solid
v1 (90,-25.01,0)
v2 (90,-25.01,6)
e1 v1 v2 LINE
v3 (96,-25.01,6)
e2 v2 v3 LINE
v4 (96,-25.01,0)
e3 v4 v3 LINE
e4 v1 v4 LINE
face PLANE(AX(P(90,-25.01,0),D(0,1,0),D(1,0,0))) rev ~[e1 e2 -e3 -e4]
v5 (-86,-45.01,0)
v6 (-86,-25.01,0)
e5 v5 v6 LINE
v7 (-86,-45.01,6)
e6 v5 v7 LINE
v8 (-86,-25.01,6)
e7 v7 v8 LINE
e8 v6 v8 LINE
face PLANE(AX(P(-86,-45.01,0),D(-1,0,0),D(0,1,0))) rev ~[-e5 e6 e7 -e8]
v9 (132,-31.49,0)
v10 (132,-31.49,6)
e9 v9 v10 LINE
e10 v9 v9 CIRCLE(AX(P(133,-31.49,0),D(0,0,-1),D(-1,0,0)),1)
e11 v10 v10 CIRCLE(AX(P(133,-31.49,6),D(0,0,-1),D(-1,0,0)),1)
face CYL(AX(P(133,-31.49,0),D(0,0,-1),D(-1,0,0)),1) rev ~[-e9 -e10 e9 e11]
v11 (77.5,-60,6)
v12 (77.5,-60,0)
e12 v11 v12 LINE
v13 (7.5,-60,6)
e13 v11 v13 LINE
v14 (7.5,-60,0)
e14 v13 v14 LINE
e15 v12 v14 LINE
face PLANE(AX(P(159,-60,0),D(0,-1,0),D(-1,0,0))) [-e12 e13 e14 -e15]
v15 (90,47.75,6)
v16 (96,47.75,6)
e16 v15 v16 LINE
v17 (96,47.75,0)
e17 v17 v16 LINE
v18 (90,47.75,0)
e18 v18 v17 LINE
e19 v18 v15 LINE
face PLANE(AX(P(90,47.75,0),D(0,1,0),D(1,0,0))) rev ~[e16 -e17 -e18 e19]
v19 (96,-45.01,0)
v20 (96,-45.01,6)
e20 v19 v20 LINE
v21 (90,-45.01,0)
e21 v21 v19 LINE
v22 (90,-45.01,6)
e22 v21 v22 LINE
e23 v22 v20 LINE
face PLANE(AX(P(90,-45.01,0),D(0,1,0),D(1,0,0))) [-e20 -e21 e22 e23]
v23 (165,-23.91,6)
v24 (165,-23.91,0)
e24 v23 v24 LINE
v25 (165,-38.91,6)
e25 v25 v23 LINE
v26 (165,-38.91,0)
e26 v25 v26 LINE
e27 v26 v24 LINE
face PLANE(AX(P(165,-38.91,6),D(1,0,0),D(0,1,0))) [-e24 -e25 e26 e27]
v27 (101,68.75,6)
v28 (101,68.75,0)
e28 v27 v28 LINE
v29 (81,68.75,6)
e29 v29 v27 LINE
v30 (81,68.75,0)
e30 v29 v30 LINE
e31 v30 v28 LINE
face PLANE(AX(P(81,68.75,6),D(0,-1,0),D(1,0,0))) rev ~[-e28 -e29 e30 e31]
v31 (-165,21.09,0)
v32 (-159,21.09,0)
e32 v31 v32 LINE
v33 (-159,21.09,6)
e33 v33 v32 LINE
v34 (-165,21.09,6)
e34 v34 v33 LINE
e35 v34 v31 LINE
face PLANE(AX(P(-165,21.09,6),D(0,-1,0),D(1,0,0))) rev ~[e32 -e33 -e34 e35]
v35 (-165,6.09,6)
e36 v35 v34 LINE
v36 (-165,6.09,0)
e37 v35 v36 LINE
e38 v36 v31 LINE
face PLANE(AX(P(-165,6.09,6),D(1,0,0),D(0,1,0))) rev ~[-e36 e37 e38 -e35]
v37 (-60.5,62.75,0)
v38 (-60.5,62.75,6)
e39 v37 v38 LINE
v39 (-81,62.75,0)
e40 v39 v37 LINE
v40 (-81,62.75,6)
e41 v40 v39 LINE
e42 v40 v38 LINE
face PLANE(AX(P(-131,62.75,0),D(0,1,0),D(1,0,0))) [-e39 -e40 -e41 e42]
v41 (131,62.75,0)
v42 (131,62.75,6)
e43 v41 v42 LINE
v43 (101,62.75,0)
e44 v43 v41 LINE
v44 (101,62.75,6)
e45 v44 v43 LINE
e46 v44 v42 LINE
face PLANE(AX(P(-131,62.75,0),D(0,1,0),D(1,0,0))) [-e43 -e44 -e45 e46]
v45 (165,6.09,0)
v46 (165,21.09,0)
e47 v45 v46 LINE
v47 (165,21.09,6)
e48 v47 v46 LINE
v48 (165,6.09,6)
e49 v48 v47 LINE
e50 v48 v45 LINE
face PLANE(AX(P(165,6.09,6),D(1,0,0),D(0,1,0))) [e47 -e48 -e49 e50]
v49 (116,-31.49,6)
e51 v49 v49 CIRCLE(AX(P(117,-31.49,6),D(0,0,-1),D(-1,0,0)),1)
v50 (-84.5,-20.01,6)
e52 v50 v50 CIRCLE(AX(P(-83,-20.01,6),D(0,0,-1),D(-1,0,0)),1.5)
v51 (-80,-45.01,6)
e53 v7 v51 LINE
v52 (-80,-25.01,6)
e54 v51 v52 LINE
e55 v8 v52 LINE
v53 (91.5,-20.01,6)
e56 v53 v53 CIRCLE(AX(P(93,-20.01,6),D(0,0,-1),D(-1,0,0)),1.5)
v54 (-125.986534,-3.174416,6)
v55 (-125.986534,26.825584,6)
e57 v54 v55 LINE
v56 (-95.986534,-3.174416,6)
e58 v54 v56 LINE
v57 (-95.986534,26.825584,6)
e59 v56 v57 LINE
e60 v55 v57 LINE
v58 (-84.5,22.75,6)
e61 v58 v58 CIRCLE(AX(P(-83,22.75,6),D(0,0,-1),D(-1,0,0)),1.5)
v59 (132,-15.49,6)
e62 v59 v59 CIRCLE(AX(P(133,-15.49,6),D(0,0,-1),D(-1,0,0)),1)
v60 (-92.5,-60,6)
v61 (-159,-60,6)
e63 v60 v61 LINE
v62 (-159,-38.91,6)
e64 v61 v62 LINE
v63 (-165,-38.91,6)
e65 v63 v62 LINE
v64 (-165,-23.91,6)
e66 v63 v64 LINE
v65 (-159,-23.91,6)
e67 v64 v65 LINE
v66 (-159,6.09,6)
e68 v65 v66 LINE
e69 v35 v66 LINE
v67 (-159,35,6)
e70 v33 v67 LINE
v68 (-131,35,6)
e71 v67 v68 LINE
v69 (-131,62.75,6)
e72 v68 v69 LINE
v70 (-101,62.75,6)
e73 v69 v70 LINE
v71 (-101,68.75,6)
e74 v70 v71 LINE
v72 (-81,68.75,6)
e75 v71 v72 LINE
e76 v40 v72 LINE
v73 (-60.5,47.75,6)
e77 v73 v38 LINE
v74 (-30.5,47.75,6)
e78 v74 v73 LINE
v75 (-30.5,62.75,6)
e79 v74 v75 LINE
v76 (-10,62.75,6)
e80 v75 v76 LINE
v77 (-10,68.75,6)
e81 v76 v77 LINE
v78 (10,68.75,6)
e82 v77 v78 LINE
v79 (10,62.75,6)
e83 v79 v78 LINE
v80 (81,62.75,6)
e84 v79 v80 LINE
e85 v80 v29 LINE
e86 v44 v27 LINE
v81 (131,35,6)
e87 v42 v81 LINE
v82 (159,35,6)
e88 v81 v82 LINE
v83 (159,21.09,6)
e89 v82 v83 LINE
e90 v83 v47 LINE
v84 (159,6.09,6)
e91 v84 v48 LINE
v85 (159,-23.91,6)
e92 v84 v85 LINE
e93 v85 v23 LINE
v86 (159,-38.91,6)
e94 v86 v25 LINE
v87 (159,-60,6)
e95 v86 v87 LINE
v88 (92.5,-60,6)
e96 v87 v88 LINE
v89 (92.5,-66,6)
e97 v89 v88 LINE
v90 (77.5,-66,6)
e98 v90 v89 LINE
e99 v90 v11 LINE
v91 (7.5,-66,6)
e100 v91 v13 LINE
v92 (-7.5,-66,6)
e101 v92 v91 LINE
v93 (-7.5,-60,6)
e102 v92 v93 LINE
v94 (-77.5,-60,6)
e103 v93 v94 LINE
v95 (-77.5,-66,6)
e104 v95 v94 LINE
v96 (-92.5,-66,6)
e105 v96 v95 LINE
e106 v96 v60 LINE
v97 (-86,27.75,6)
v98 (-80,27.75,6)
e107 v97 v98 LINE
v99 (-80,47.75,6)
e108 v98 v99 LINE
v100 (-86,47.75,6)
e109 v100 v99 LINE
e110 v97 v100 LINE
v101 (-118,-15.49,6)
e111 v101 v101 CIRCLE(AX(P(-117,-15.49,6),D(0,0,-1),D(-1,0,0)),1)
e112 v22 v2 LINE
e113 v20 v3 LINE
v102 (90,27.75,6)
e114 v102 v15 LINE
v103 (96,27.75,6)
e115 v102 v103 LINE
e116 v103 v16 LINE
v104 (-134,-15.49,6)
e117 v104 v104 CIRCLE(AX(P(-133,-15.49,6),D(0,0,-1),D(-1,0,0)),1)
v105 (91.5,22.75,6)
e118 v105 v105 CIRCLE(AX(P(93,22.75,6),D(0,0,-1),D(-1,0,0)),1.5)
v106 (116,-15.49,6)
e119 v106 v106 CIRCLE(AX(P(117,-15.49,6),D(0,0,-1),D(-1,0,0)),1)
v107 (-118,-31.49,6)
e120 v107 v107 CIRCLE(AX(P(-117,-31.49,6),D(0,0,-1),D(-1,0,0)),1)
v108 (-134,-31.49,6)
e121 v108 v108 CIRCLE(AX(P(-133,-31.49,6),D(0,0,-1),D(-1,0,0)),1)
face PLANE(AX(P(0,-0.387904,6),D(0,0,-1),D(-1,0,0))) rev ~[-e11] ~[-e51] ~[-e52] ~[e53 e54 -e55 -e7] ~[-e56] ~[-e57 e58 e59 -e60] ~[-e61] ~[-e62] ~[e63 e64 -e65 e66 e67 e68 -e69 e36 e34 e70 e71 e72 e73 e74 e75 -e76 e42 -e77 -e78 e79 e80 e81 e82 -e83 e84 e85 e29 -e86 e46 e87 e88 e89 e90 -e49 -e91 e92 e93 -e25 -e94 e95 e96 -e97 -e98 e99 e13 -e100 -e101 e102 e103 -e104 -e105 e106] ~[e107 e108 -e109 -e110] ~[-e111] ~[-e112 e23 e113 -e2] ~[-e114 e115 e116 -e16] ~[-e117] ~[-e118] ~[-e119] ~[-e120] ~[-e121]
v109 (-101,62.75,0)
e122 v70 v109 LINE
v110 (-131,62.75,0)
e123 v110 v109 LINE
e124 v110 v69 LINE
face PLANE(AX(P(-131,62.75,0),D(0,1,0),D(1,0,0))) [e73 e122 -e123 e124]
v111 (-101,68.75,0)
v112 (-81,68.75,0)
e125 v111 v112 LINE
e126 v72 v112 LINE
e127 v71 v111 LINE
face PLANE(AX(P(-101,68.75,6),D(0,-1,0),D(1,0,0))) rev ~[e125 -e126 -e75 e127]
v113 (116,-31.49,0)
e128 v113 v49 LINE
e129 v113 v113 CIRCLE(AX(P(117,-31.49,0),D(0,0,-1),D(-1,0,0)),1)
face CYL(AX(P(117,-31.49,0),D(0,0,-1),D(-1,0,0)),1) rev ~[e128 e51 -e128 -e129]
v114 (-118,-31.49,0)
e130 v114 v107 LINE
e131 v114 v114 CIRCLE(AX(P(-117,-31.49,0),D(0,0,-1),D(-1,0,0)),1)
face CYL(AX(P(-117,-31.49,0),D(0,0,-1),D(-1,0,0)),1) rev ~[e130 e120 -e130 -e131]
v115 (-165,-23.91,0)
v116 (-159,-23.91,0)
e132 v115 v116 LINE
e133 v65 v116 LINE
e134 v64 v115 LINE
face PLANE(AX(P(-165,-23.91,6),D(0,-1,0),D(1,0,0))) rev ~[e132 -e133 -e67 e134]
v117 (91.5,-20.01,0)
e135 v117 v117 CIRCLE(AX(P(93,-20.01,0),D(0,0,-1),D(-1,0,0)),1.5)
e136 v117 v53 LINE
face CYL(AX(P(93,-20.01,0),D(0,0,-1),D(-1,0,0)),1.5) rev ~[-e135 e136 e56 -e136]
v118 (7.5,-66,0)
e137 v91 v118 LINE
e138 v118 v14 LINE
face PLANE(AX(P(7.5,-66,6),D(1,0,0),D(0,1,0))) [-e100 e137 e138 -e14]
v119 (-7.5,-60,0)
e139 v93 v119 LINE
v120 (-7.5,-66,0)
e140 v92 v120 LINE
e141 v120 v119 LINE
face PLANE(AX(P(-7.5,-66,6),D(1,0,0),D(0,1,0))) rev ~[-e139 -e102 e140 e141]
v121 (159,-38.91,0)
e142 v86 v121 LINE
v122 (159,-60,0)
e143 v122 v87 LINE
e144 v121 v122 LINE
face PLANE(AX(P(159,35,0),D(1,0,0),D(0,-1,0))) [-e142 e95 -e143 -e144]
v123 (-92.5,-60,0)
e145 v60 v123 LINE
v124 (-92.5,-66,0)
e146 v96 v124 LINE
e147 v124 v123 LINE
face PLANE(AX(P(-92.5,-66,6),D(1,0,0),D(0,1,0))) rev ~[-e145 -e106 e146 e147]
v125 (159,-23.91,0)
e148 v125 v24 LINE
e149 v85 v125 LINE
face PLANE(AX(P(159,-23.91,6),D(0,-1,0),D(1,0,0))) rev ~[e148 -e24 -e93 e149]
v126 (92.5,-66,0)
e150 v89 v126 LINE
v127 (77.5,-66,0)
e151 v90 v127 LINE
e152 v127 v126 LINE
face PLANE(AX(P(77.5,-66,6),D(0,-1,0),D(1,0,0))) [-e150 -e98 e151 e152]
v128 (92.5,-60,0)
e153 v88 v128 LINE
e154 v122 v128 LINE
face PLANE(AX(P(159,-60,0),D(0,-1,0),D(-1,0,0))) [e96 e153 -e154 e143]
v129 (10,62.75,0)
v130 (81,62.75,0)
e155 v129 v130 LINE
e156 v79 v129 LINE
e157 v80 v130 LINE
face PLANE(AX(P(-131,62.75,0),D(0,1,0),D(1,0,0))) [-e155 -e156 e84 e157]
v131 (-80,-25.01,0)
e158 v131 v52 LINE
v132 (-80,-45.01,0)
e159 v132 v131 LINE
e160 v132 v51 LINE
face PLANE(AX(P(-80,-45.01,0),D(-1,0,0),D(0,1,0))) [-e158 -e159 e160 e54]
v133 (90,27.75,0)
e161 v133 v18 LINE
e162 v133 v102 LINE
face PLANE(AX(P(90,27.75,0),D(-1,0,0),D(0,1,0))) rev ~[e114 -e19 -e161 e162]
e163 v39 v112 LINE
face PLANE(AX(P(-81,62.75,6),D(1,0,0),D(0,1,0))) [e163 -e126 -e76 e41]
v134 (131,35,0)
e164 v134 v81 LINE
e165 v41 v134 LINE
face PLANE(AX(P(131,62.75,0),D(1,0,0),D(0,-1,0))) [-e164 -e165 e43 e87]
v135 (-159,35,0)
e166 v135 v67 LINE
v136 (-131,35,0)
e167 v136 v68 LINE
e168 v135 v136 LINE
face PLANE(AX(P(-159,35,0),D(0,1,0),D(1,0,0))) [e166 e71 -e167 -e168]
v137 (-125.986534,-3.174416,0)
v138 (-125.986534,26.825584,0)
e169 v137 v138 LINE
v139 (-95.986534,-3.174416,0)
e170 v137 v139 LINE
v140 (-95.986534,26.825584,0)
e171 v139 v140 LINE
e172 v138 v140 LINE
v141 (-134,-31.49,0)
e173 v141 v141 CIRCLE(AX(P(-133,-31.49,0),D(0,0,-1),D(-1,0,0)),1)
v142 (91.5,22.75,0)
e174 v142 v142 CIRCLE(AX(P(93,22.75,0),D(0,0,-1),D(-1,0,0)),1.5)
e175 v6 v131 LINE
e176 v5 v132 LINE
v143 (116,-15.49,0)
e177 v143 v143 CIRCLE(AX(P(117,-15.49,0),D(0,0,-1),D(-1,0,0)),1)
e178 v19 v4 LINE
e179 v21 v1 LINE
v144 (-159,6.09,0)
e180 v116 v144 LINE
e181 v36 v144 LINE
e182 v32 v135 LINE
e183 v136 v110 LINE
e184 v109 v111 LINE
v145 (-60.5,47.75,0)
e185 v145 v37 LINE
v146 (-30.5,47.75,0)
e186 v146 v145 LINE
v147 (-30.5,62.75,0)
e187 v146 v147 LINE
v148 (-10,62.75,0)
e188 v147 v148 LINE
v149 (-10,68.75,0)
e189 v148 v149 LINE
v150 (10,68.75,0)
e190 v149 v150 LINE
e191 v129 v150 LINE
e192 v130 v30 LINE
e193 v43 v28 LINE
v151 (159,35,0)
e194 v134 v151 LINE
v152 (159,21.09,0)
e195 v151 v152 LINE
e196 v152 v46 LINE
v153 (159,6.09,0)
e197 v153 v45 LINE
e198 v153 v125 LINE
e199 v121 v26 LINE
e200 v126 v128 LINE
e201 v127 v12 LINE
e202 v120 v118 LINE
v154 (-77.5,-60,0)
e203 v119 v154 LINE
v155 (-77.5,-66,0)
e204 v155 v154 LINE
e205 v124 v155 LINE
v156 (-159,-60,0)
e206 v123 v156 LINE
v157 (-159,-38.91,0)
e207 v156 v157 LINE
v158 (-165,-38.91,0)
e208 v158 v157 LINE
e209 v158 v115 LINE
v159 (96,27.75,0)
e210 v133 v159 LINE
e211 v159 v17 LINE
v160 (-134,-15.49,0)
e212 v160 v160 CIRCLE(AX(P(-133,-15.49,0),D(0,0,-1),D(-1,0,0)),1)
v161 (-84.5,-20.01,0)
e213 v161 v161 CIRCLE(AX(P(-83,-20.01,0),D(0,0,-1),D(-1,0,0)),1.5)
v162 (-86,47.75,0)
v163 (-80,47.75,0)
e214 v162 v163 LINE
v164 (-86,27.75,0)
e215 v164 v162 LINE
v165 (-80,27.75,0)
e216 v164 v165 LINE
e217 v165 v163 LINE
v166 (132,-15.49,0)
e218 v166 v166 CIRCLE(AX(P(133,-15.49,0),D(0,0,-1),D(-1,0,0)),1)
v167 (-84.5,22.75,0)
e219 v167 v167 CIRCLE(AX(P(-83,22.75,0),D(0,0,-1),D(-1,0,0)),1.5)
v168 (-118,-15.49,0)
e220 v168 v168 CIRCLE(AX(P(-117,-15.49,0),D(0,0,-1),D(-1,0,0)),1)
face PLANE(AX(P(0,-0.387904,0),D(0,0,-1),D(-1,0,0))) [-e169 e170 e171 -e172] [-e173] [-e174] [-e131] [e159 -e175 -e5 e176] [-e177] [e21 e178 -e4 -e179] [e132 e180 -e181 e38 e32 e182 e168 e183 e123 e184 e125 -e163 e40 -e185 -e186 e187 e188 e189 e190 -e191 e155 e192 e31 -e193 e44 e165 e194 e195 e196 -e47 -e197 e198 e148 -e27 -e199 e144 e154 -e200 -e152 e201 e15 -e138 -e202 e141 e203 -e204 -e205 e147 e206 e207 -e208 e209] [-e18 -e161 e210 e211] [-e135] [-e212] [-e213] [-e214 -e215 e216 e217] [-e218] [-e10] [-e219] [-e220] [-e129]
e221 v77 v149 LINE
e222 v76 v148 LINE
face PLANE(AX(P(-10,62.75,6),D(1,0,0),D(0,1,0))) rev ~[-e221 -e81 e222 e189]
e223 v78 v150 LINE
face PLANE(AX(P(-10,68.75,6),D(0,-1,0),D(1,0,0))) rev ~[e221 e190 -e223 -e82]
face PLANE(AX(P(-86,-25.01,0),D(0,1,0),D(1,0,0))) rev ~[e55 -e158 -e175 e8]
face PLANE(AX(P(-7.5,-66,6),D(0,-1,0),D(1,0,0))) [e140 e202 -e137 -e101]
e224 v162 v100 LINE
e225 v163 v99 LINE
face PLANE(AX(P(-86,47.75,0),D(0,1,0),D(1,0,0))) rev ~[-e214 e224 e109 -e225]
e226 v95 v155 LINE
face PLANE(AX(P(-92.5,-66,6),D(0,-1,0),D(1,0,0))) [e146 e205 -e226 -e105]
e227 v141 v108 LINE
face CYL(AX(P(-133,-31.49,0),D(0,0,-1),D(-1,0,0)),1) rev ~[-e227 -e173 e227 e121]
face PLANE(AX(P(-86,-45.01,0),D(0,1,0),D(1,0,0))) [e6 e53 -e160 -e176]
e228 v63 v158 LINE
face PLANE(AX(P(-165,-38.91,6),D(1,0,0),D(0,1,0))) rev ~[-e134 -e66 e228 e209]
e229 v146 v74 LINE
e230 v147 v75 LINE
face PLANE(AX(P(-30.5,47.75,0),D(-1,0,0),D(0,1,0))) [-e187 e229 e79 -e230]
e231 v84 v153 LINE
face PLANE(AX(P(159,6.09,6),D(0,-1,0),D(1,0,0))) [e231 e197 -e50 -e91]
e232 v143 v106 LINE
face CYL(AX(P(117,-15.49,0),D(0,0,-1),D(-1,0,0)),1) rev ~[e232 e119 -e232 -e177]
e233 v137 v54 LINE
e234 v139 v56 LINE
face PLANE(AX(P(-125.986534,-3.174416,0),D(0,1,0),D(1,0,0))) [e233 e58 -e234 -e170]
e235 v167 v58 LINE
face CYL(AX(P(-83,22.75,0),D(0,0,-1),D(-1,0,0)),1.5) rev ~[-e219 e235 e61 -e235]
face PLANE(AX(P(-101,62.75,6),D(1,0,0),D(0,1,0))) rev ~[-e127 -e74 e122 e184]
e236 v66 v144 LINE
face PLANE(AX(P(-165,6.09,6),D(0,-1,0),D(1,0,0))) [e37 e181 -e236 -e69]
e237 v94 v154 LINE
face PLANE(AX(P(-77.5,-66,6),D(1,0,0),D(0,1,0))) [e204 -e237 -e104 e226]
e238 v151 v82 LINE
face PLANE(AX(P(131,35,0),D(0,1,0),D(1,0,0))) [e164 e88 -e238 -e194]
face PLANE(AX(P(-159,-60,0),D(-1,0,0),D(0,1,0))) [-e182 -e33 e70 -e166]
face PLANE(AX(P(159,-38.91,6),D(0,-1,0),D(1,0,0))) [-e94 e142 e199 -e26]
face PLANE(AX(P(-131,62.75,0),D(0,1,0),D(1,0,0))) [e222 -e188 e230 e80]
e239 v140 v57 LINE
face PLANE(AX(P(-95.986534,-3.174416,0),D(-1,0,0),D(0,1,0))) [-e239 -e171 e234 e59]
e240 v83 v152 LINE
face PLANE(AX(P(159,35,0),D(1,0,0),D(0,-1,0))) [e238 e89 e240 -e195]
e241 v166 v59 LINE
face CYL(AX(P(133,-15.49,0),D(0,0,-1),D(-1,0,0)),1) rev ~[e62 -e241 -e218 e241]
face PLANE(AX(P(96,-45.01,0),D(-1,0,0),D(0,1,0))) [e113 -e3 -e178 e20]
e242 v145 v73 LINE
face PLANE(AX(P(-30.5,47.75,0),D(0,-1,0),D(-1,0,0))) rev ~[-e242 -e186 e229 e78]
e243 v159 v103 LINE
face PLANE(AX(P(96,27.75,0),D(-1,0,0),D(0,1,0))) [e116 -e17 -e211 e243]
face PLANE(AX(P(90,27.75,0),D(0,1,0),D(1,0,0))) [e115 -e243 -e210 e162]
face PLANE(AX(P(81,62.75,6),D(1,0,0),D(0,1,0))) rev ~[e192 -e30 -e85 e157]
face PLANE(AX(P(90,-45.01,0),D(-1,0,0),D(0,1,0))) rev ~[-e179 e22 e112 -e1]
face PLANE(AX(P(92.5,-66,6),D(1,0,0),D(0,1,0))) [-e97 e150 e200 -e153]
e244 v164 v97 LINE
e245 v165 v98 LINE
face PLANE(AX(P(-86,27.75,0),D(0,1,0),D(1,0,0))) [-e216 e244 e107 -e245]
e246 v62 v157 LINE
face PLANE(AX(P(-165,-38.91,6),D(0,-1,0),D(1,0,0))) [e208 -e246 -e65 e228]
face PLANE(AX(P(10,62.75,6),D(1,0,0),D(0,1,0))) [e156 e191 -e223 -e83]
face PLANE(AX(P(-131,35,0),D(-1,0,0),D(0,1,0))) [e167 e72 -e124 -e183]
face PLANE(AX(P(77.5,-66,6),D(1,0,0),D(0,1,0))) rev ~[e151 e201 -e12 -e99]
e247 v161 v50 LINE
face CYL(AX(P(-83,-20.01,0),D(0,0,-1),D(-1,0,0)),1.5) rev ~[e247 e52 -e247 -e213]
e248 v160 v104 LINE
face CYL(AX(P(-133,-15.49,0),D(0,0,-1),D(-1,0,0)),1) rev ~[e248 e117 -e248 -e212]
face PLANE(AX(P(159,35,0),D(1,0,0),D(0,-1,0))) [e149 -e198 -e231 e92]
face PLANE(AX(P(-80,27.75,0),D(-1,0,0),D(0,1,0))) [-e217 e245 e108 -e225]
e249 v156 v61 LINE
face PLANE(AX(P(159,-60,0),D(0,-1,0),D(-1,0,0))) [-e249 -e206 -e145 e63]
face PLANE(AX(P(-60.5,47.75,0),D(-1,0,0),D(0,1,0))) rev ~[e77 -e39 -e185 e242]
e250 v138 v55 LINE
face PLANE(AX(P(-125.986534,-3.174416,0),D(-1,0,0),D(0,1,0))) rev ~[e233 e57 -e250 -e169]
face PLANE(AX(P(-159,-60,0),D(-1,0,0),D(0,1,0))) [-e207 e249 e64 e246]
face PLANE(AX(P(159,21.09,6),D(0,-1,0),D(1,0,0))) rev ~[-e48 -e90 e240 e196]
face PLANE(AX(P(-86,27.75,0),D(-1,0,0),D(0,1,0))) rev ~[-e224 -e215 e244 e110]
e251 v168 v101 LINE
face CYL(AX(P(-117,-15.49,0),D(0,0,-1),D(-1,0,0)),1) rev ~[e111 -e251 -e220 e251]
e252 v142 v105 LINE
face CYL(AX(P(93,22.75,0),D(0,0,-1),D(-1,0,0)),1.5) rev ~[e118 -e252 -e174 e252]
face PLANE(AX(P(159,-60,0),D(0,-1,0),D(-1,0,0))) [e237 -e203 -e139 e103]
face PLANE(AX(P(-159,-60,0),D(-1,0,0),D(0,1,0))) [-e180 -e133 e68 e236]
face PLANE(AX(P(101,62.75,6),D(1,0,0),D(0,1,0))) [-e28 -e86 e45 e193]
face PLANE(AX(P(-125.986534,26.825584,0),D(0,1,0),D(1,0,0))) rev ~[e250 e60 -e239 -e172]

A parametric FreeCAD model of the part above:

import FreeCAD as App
import Part
import Sketcher

V = App.Vector
Q = App.Units.Quantity

doc = App.newDocument("Part")
body = doc.addObject("PartDesign::Body", "Body")

sketch1 = body.newObject("Sketcher::SketchObject", "Sketch")
sketch1.AttachmentSupport = (doc.getObject("XY_Plane"), [""])
sketch1.MapMode = "FlatFace"
sketch1.addGeometry(Part.LineSegment(V(-131, 35, 0), V(-159, 35, 0)), False)
sketch1.addGeometry(Part.LineSegment(V(-159, 35, 0), V(-159, -60, 0)), False)
sketch1.addGeometry(Part.LineSegment(V(-159, -60, 0), V(159, -60, 0)), False)
sketch1.addGeometry(Part.LineSegment(V(159, -60, 0), V(159, 35, 0)), False)
sketch1.addGeometry(Part.LineSegment(V(159, 35, 0), V(131, 35, 0)), False)
sketch1.addGeometry(Part.LineSegment(V(131, 35, 0), V(131, 63, 0)), False)
sketch1.addGeometry(Part.LineSegment(V(131, 63, 0), V(-131, 63, 0)), False)
sketch1.addGeometry(Part.LineSegment(V(-131, 63, 0), V(-131, 35, 0)), False)
sketch1.addGeometry(Part.LineSegment(V(90, -45, 0), V(90, -25, 0)), False)
sketch1.addGeometry(Part.LineSegment(V(90, -25, 0), V(96, -25, 0)), False)
sketch1.addGeometry(Part.LineSegment(V(96, -25, 0), V(96, -45, 0)), False)
sketch1.addGeometry(Part.LineSegment(V(96, -45, 0), V(90, -45, 0)), False)
sketch1.addGeometry(Part.LineSegment(V(-86, -45, 0), V(-86, -25, 0)), False)
sketch1.addGeometry(Part.LineSegment(V(-86, -25, 0), V(-80, -25, 0)), False)
sketch1.addGeometry(Part.LineSegment(V(-80, -25, 0), V(-80, -45, 0)), False)
sketch1.addGeometry(Part.LineSegment(V(-80, -45, 0), V(-86, -45, 0)), False)
sketch1.addGeometry(Part.LineSegment(V(90, 28, 0), V(90, 48, 0)), False)
sketch1.addGeometry(Part.LineSegment(V(90, 48, 0), V(96, 48, 0)), False)
sketch1.addGeometry(Part.LineSegment(V(96, 48, 0), V(96, 28, 0)), False)
sketch1.addGeometry(Part.LineSegment(V(96, 28, 0), V(90, 28, 0)), False)
sketch1.addGeometry(Part.LineSegment(V(-126, -3, 0), V(-126, 27, 0)), False)
sketch1.addGeometry(Part.LineSegment(V(-126, 27, 0), V(-96, 27, 0)), False)
sketch1.addGeometry(Part.LineSegment(V(-96, 27, 0), V(-96, -3, 0)), False)
sketch1.addGeometry(Part.LineSegment(V(-96, -3, 0), V(-126, -3, 0)), False)
sketch1.addGeometry(Part.LineSegment(V(-86, 28, 0), V(-86, 48, 0)), False)
sketch1.addGeometry(Part.LineSegment(V(-86, 48, 0), V(-80, 48, 0)), False)
sketch1.addGeometry(Part.LineSegment(V(-80, 48, 0), V(-80, 28, 0)), False)
sketch1.addGeometry(Part.LineSegment(V(-80, 28, 0), V(-86, 28, 0)), False)
sketch1.addConstraint(Sketcher.Constraint("Coincident", 0, 2, 1, 1))
sketch1.addConstraint(Sketcher.Constraint("Coincident", 1, 2, 2, 1))
sketch1.addConstraint(Sketcher.Constraint("Coincident", 2, 2, 3, 1))
sketch1.addConstraint(Sketcher.Constraint("Coincident", 3, 2, 4, 1))
sketch1.addConstraint(Sketcher.Constraint("Coincident", 4, 2, 5, 1))
sketch1.addConstraint(Sketcher.Constraint("Coincident", 5, 2, 6, 1))
sketch1.addConstraint(Sketcher.Constraint("Coincident", 6, 2, 7, 1))
sketch1.addConstraint(Sketcher.Constraint("Coincident", 7, 2, 0, 1))
sketch1.addConstraint(Sketcher.Constraint("Coincident", 8, 2, 9, 1))
sketch1.addConstraint(Sketcher.Constraint("Coincident", 9, 2, 10, 1))
sketch1.addConstraint(Sketcher.Constraint("Coincident", 10, 2, 11, 1))
sketch1.addConstraint(Sketcher.Constraint("Coincident", 11, 2, 8, 1))
sketch1.addConstraint(Sketcher.Constraint("Coincident", 12, 2, 13, 1))
sketch1.addConstraint(Sketcher.Constraint("Coincident", 13, 2, 14, 1))
sketch1.addConstraint(Sketcher.Constraint("Coincident", 14, 2, 15, 1))
sketch1.addConstraint(Sketcher.Constraint("Coincident", 15, 2, 12, 1))
sketch1.addConstraint(Sketcher.Constraint("Coincident", 16, 2, 17, 1))
sketch1.addConstraint(Sketcher.Constraint("Coincident", 17, 2, 18, 1))
sketch1.addConstraint(Sketcher.Constraint("Coincident", 18, 2, 19, 1))
sketch1.addConstraint(Sketcher.Constraint("Coincident", 19, 2, 16, 1))
sketch1.addConstraint(Sketcher.Constraint("Coincident", 20, 2, 21, 1))
sketch1.addConstraint(Sketcher.Constraint("Coincident", 21, 2, 22, 1))
sketch1.addConstraint(Sketcher.Constraint("Coincident", 22, 2, 23, 1))
sketch1.addConstraint(Sketcher.Constraint("Coincident", 23, 2, 20, 1))
sketch1.addConstraint(Sketcher.Constraint("Coincident", 24, 2, 25, 1))
sketch1.addConstraint(Sketcher.Constraint("Coincident", 25, 2, 26, 1))
sketch1.addConstraint(Sketcher.Constraint("Coincident", 26, 2, 27, 1))
sketch1.addConstraint(Sketcher.Constraint("Coincident", 27, 2, 24, 1))
sketch1.addConstraint(Sketcher.Constraint("Horizontal", 0))
sketch1.addConstraint(Sketcher.Constraint("Vertical", 1))
sketch1.addConstraint(Sketcher.Constraint("Horizontal", 2))
sketch1.addConstraint(Sketcher.Constraint("Vertical", 3))
sketch1.addConstraint(Sketcher.Constraint("Horizontal", 4))
sketch1.addConstraint(Sketcher.Constraint("Vertical", 5))
sketch1.addConstraint(Sketcher.Constraint("Horizontal", 6))
sketch1.addConstraint(Sketcher.Constraint("Vertical", 7))
sketch1.addConstraint(Sketcher.Constraint("Vertical", 8))
sketch1.addConstraint(Sketcher.Constraint("Horizontal", 9))
sketch1.addConstraint(Sketcher.Constraint("Vertical", 10))
sketch1.addConstraint(Sketcher.Constraint("Horizontal", 11))
sketch1.addConstraint(Sketcher.Constraint("Vertical", 12))
sketch1.addConstraint(Sketcher.Constraint("Horizontal", 13))
sketch1.addConstraint(Sketcher.Constraint("Vertical", 14))
sketch1.addConstraint(Sketcher.Constraint("Horizontal", 15))
sketch1.addConstraint(Sketcher.Constraint("Vertical", 16))
sketch1.addConstraint(Sketcher.Constraint("Horizontal", 17))
sketch1.addConstraint(Sketcher.Constraint("Vertical", 18))
sketch1.addConstraint(Sketcher.Constraint("Horizontal", 19))
sketch1.addConstraint(Sketcher.Constraint("Vertical", 20))
sketch1.addConstraint(Sketcher.Constraint("Horizontal", 21))
sketch1.addConstraint(Sketcher.Constraint("Vertical", 22))
sketch1.addConstraint(Sketcher.Constraint("Horizontal", 23))
sketch1.addConstraint(Sketcher.Constraint("Vertical", 24))
sketch1.addConstraint(Sketcher.Constraint("Horizontal", 25))
sketch1.addConstraint(Sketcher.Constraint("Vertical", 26))
sketch1.addConstraint(Sketcher.Constraint("Horizontal", 27))
sketch1.addConstraint(Sketcher.Constraint("Symmetric", 0, 2, 3, 2, -2))
sketch1.addConstraint(Sketcher.Constraint("Horizontal", 9, 2, 12, 2))
sketch1.addConstraint(Sketcher.Constraint("Horizontal", 11, 2, 14, 2))
sketch1.addConstraint(Sketcher.Constraint("Horizontal", 17, 2, 24, 2))
sketch1.addConstraint(Sketcher.Constraint("Horizontal", 19, 2, 26, 2))
sketch1.addConstraint(Sketcher.Constraint("Vertical", 11, 2, 16, 2))
sketch1.addConstraint(Sketcher.Constraint("Vertical", 10, 2, 17, 2))
sketch1.addConstraint(Sketcher.Constraint("Vertical", 15, 2, 24, 2))
sketch1.addConstraint(Sketcher.Constraint("Vertical", 14, 2, 25, 2))
sketch1.addConstraint(Sketcher.Constraint("Equal", 0, 4))
sketch1.addConstraint(Sketcher.Constraint("Equal", 11, 13))
sketch1.addConstraint(Sketcher.Constraint("Equal", 14, 16))
sketch1.addConstraint(Sketcher.Constraint("Equal", 23, 20))
sketch1.addConstraint(Sketcher.Constraint("DistanceX", 0, 2, 0, 1, Q("28 mm")))
sketch1.addConstraint(Sketcher.Constraint("DistanceX", 2, 1, 2, 2, Q("318 mm")))
sketch1.addConstraint(Sketcher.Constraint("DistanceX", 9, 1, 9, 2, Q("6 mm")))
sketch1.addConstraint(Sketcher.Constraint("DistanceX", 21, 1, 21, 2, Q("30 mm")))
sketch1.addConstraint(Sketcher.Constraint("DistanceY", 1, 2, 1, 1, Q("95 mm")))
sketch1.addConstraint(Sketcher.Constraint("DistanceY", 8, 1, 8, 2, Q("20 mm")))
sketch1.addConstraint(Sketcher.Constraint("DistanceY", -1, 1, 0, 2, Q("35 mm")))
sketch1.addConstraint(Sketcher.Constraint("DistanceX", -1, 1, 8, 2, Q("90 mm")))
sketch1.addConstraint(Sketcher.Constraint("DistanceX", 12, 2, -1, 1, Q("86 mm")))
sketch1.addConstraint(Sketcher.Constraint("DistanceY", 16, 2, 5, 2, Q("15 mm")))
sketch1.addConstraint(Sketcher.Constraint("DistanceY", 5, 1, 5, 2, Q("27.75 mm")))
sketch1.addConstraint(Sketcher.Constraint("DistanceY", 8, 2, -1, 1, Q("25.01 mm")))
sketch1.addConstraint(Sketcher.Constraint("DistanceX", 20, 2, -1, 1, Q("125.986534 mm")))
sketch1.addConstraint(Sketcher.Constraint("DistanceY", -1, 1, 20, 2, Q("26.825584 mm")))
pad1 = body.newObject("PartDesign::Pad", "Pad")
pad1.Profile = sketch1
pad1.Length = 6

sketch2 = body.newObject("Sketcher::SketchObject", "Sketch001")
sketch2.AttachmentSupport = (doc.getObject("XY_Plane"), [""])
sketch2.MapMode = "FlatFace"
sketch2.AttachmentOffset = App.Placement(V(0, 0, 6), App.Rotation())
sketch2.addGeometry(Part.LineSegment(V(-92, -60, 0), V(-92, -66, 0)), False)
sketch2.addGeometry(Part.LineSegment(V(-92, -66, 0), V(-78, -66, 0)), False)
sketch2.addGeometry(Part.LineSegment(V(-78, -66, 0), V(-78, -60, 0)), False)
sketch2.addGeometry(Part.LineSegment(V(-78, -60, 0), V(-92, -60, 0)), False)
sketch2.addGeometry(Part.LineSegment(V(-8, -60, 0), V(-8, -66, 0)), False)
sketch2.addGeometry(Part.LineSegment(V(-8, -66, 0), V(8, -66, 0)), False)
sketch2.addGeometry(Part.LineSegment(V(8, -66, 0), V(8, -60, 0)), False)
sketch2.addGeometry(Part.LineSegment(V(8, -60, 0), V(-8, -60, 0)), False)
sketch2.addGeometry(Part.LineSegment(V(78, -60, 0), V(78, -66, 0)), False)
sketch2.addGeometry(Part.LineSegment(V(78, -66, 0), V(92, -66, 0)), False)
sketch2.addGeometry(Part.LineSegment(V(92, -66, 0), V(92, -60, 0)), False)
sketch2.addGeometry(Part.LineSegment(V(92, -60, 0), V(78, -60, 0)), False)
sketch2.addGeometry(Part.LineSegment(V(-165, 21, 0), V(-165, 6, 0)), False)
sketch2.addGeometry(Part.LineSegment(V(-165, 6, 0), V(-159, 6, 0)), False)
sketch2.addGeometry(Part.LineSegment(V(-159, 6, 0), V(-159, 21, 0)), False)
sketch2.addGeometry(Part.LineSegment(V(-159, 21, 0), V(-165, 21, 0)), False)
sketch2.addGeometry(Part.LineSegment(V(-165, -24, 0), V(-165, -39, 0)), False)
sketch2.addGeometry(Part.LineSegment(V(-165, -39, 0), V(-159, -39, 0)), False)
sketch2.addGeometry(Part.LineSegment(V(-159, -39, 0), V(-159, -24, 0)), False)
sketch2.addGeometry(Part.LineSegment(V(-159, -24, 0), V(-165, -24, 0)), False)
sketch2.addGeometry(Part.LineSegment(V(159, -24, 0), V(159, -39, 0)), False)
sketch2.addGeometry(Part.LineSegment(V(159, -39, 0), V(165, -39, 0)), False)
sketch2.addGeometry(Part.LineSegment(V(165, -39, 0), V(165, -24, 0)), False)
sketch2.addGeometry(Part.LineSegment(V(165, -24, 0), V(159, -24, 0)), False)
sketch2.addGeometry(Part.LineSegment(V(159, 21, 0), V(159, 6, 0)), False)
sketch2.addGeometry(Part.LineSegment(V(159, 6, 0), V(165, 6, 0)), False)
sketch2.addGeometry(Part.LineSegment(V(165, 6, 0), V(165, 21, 0)), False)
sketch2.addGeometry(Part.LineSegment(V(165, 21, 0), V(159, 21, 0)), False)
sketch2.addGeometry(Part.LineSegment(V(81, 69, 0), V(81, 63, 0)), False)
sketch2.addGeometry(Part.LineSegment(V(81, 63, 0), V(101, 63, 0)), False)
sketch2.addGeometry(Part.LineSegment(V(101, 63, 0), V(101, 69, 0)), False)
sketch2.addGeometry(Part.LineSegment(V(101, 69, 0), V(81, 69, 0)), False)
sketch2.addGeometry(Part.LineSegment(V(-101, 69, 0), V(-101, 63, 0)), False)
sketch2.addGeometry(Part.LineSegment(V(-101, 63, 0), V(-81, 63, 0)), False)
sketch2.addGeometry(Part.LineSegment(V(-81, 63, 0), V(-81, 69, 0)), False)
sketch2.addGeometry(Part.LineSegment(V(-81, 69, 0), V(-101, 69, 0)), False)
sketch2.addGeometry(Part.LineSegment(V(-10, 69, 0), V(-10, 63, 0)), False)
sketch2.addGeometry(Part.LineSegment(V(-10, 63, 0), V(10, 63, 0)), False)
sketch2.addGeometry(Part.LineSegment(V(10, 63, 0), V(10, 69, 0)), False)
sketch2.addGeometry(Part.LineSegment(V(10, 69, 0), V(-10, 69, 0)), False)
sketch2.addConstraint(Sketcher.Constraint("Coincident", 0, 2, 1, 1))
sketch2.addConstraint(Sketcher.Constraint("Coincident", 1, 2, 2, 1))
sketch2.addConstraint(Sketcher.Constraint("Coincident", 2, 2, 3, 1))
sketch2.addConstraint(Sketcher.Constraint("Coincident", 3, 2, 0, 1))
sketch2.addConstraint(Sketcher.Constraint("Coincident", 4, 2, 5, 1))
sketch2.addConstraint(Sketcher.Constraint("Coincident", 5, 2, 6, 1))
sketch2.addConstraint(Sketcher.Constraint("Coincident", 6, 2, 7, 1))
sketch2.addConstraint(Sketcher.Constraint("Coincident", 7, 2, 4, 1))
sketch2.addConstraint(Sketcher.Constraint("Coincident", 8, 2, 9, 1))
sketch2.addConstraint(Sketcher.Constraint("Coincident", 9, 2, 10, 1))
sketch2.addConstraint(Sketcher.Constraint("Coincident", 10, 2, 11, 1))
sketch2.addConstraint(Sketcher.Constraint("Coincident", 11, 2, 8, 1))
sketch2.addConstraint(Sketcher.Constraint("Coincident", 12, 2, 13, 1))
sketch2.addConstraint(Sketcher.Constraint("Coincident", 13, 2, 14, 1))
sketch2.addConstraint(Sketcher.Constraint("Coincident", 14, 2, 15, 1))
sketch2.addConstraint(Sketcher.Constraint("Coincident", 15, 2, 12, 1))
sketch2.addConstraint(Sketcher.Constraint("Coincident", 16, 2, 17, 1))
sketch2.addConstraint(Sketcher.Constraint("Coincident", 17, 2, 18, 1))
sketch2.addConstraint(Sketcher.Constraint("Coincident", 18, 2, 19, 1))
sketch2.addConstraint(Sketcher.Constraint("Coincident", 19, 2, 16, 1))
sketch2.addConstraint(Sketcher.Constraint("Coincident", 20, 2, 21, 1))
sketch2.addConstraint(Sketcher.Constraint("Coincident", 21, 2, 22, 1))
sketch2.addConstraint(Sketcher.Constraint("Coincident", 22, 2, 23, 1))
sketch2.addConstraint(Sketcher.Constraint("Coincident", 23, 2, 20, 1))
sketch2.addConstraint(Sketcher.Constraint("Coincident", 24, 2, 25, 1))
sketch2.addConstraint(Sketcher.Constraint("Coincident", 25, 2, 26, 1))
sketch2.addConstraint(Sketcher.Constraint("Coincident", 26, 2, 27, 1))
sketch2.addConstraint(Sketcher.Constraint("Coincident", 27, 2, 24, 1))
sketch2.addConstraint(Sketcher.Constraint("Coincident", 28, 2, 29, 1))
sketch2.addConstraint(Sketcher.Constraint("Coincident", 29, 2, 30, 1))
sketch2.addConstraint(Sketcher.Constraint("Coincident", 30, 2, 31, 1))
sketch2.addConstraint(Sketcher.Constraint("Coincident", 31, 2, 28, 1))
sketch2.addConstraint(Sketcher.Constraint("Coincident", 32, 2, 33, 1))
sketch2.addConstraint(Sketcher.Constraint("Coincident", 33, 2, 34, 1))
sketch2.addConstraint(Sketcher.Constraint("Coincident", 34, 2, 35, 1))
sketch2.addConstraint(Sketcher.Constraint("Coincident", 35, 2, 32, 1))
sketch2.addConstraint(Sketcher.Constraint("Coincident", 36, 2, 37, 1))
sketch2.addConstraint(Sketcher.Constraint("Coincident", 37, 2, 38, 1))
sketch2.addConstraint(Sketcher.Constraint("Coincident", 38, 2, 39, 1))
sketch2.addConstraint(Sketcher.Constraint("Coincident", 39, 2, 36, 1))
sketch2.addConstraint(Sketcher.Constraint("Vertical", 0))
sketch2.addConstraint(Sketcher.Constraint("Horizontal", 1))
sketch2.addConstraint(Sketcher.Constraint("Vertical", 2))
sketch2.addConstraint(Sketcher.Constraint("Horizontal", 3))
sketch2.addConstraint(Sketcher.Constraint("Vertical", 4))
sketch2.addConstraint(Sketcher.Constraint("Horizontal", 5))
sketch2.addConstraint(Sketcher.Constraint("Vertical", 6))
sketch2.addConstraint(Sketcher.Constraint("Horizontal", 7))
sketch2.addConstraint(Sketcher.Constraint("Vertical", 8))
sketch2.addConstraint(Sketcher.Constraint("Horizontal", 9))
sketch2.addConstraint(Sketcher.Constraint("Vertical", 10))
sketch2.addConstraint(Sketcher.Constraint("Horizontal", 11))
sketch2.addConstraint(Sketcher.Constraint("Vertical", 12))
sketch2.addConstraint(Sketcher.Constraint("Horizontal", 13))
sketch2.addConstraint(Sketcher.Constraint("Vertical", 14))
sketch2.addConstraint(Sketcher.Constraint("Horizontal", 15))
sketch2.addConstraint(Sketcher.Constraint("Vertical", 16))
sketch2.addConstraint(Sketcher.Constraint("Horizontal", 17))
sketch2.addConstraint(Sketcher.Constraint("Vertical", 18))
sketch2.addConstraint(Sketcher.Constraint("Horizontal", 19))
sketch2.addConstraint(Sketcher.Constraint("Vertical", 20))
sketch2.addConstraint(Sketcher.Constraint("Horizontal", 21))
sketch2.addConstraint(Sketcher.Constraint("Vertical", 22))
sketch2.addConstraint(Sketcher.Constraint("Horizontal", 23))
sketch2.addConstraint(Sketcher.Constraint("Vertical", 24))
sketch2.addConstraint(Sketcher.Constraint("Horizontal", 25))
sketch2.addConstraint(Sketcher.Constraint("Vertical", 26))
sketch2.addConstraint(Sketcher.Constraint("Horizontal", 27))
sketch2.addConstraint(Sketcher.Constraint("Vertical", 28))
sketch2.addConstraint(Sketcher.Constraint("Horizontal", 29))
sketch2.addConstraint(Sketcher.Constraint("Vertical", 30))
sketch2.addConstraint(Sketcher.Constraint("Horizontal", 31))
sketch2.addConstraint(Sketcher.Constraint("Vertical", 32))
sketch2.addConstraint(Sketcher.Constraint("Horizontal", 33))
sketch2.addConstraint(Sketcher.Constraint("Vertical", 34))
sketch2.addConstraint(Sketcher.Constraint("Horizontal", 35))
sketch2.addConstraint(Sketcher.Constraint("Vertical", 36))
sketch2.addConstraint(Sketcher.Constraint("Horizontal", 37))
sketch2.addConstraint(Sketcher.Constraint("Vertical", 38))
sketch2.addConstraint(Sketcher.Constraint("Horizontal", 39))
sketch2.addConstraint(Sketcher.Constraint("Symmetric", 1, 2, 8, 2, -2))
sketch2.addConstraint(Sketcher.Constraint("Symmetric", 3, 2, 10, 2, -2))
sketch2.addConstraint(Sketcher.Constraint("Symmetric", 17, 2, 20, 2, -2))
sketch2.addConstraint(Sketcher.Constraint("Symmetric", 19, 2, 22, 2, -2))
sketch2.addConstraint(Sketcher.Constraint("Symmetric", 13, 2, 24, 2, -2))
sketch2.addConstraint(Sketcher.Constraint("Symmetric", 15, 2, 26, 2, -2))
sketch2.addConstraint(Sketcher.Constraint("Symmetric", 29, 2, 32, 2, -2))
sketch2.addConstraint(Sketcher.Constraint("Symmetric", 31, 2, 34, 2, -2))
sketch2.addConstraint(Sketcher.Constraint("Horizontal", 1, 2, 4, 2))
sketch2.addConstraint(Sketcher.Constraint("Horizontal", 3, 2, 6, 2))
sketch2.addConstraint(Sketcher.Constraint("Horizontal", 33, 2, 36, 2))
sketch2.addConstraint(Sketcher.Constraint("Horizontal", 35, 2, 38, 2))
sketch2.addConstraint(Sketcher.Constraint("Vertical", 15, 2, 16, 2))
sketch2.addConstraint(Sketcher.Constraint("Vertical", 14, 2, 17, 2))
sketch2.addConstraint(Sketcher.Constraint("Equal", 3, 5))
sketch2.addConstraint(Sketcher.Constraint("Equal", 35, 37))
sketch2.addConstraint(Sketcher.Constraint("Equal", 27, 0))
sketch2.addConstraint(Sketcher.Constraint("Equal", 11, 12))
sketch2.addConstraint(Sketcher.Constraint("Equal", 14, 16))
sketch2.addConstraint(Sketcher.Constraint("Equal", 10, 28))
sketch2.addConstraint(Sketcher.Constraint("DistanceX", 1, 1, 1, 2, Q("15 mm")))
sketch2.addConstraint(Sketcher.Constraint("DistanceX", 13, 1, 13, 2, Q("6 mm")))
sketch2.addConstraint(Sketcher.Constraint("DistanceX", 29, 1, 29, 2, Q("20 mm")))
sketch2.addConstraint(Sketcher.Constraint("DistanceY", 0, 2, -1, 1, Q("66 mm")))
sketch2.addConstraint(Sketcher.Constraint("DistanceX", 12, 2, -1, 1, Q("165 mm")))
sketch2.addConstraint(Sketcher.Constraint("DistanceX", -1, 1, 28, 2, Q("81 mm")))
sketch2.addConstraint(Sketcher.Constraint("DistanceX", 36, 2, -1, 1, Q("10 mm")))
sketch2.addConstraint(Sketcher.Constraint("DistanceX", 1, 2, 4, 2, Q("70 mm")))
sketch2.addConstraint(Sketcher.Constraint("DistanceX", 5, 2, 8, 2, Q("70 mm")))
sketch2.addConstraint(Sketcher.Constraint("DistanceY", 16, 2, 12, 2, Q("45 mm")))
sketch2.addConstraint(Sketcher.Constraint("DistanceY", -1, 1, 12, 2, Q("6.09 mm")))
sketch2.addConstraint(Sketcher.Constraint("DistanceY", -1, 1, 28, 2, Q("62.75 mm")))
pad2 = body.newObject("PartDesign::Pad", "Pad001")
pad2.Profile = sketch2
pad2.Length = 6
pad2.Reversed = True

sketch3 = body.newObject("Sketcher::SketchObject", "Sketch002")
sketch3.AttachmentSupport = (doc.getObject("XY_Plane"), [""])
sketch3.MapMode = "FlatFace"
sketch3.addGeometry(Part.Circle(V(-133, -31.5, 0), V(0, 0, 1), 1), False)
sketch3.addGeometry(Part.Circle(V(-133, -15.5, 0), V(0, 0, 1), 1), False)
sketch3.addGeometry(Part.Circle(V(-117, -15.5, 0), V(0, 0, 1), 1), False)
sketch3.addGeometry(Part.Circle(V(-117, -31.5, 0), V(0, 0, 1), 1), False)
sketch3.addGeometry(Part.Circle(V(117, -31.5, 0), V(0, 0, 1), 1), False)
sketch3.addGeometry(Part.Circle(V(117, -15.5, 0), V(0, 0, 1), 1), False)
sketch3.addGeometry(Part.Circle(V(133, -15.5, 0), V(0, 0, 1), 1), False)
sketch3.addGeometry(Part.Circle(V(133, -31.5, 0), V(0, 0, 1), 1), False)
sketch3.addGeometry(Part.Circle(V(-83, 22.8, 0), V(0, 0, 1), 1.5), False)
sketch3.addGeometry(Part.Circle(V(-83, -20, 0), V(0, 0, 1), 1.5), False)
sketch3.addGeometry(Part.Circle(V(93, 22.8, 0), V(0, 0, 1), 1.5), False)
sketch3.addGeometry(Part.Circle(V(93, -20, 0), V(0, 0, 1), 1.5), False)
sketch3.addConstraint(Sketcher.Constraint("Equal", 0, 1))
sketch3.addConstraint(Sketcher.Constraint("Equal", 1, 2))
sketch3.addConstraint(Sketcher.Constraint("Equal", 2, 3))
sketch3.addConstraint(Sketcher.Constraint("Equal", 3, 4))
sketch3.addConstraint(Sketcher.Constraint("Equal", 4, 5))
sketch3.addConstraint(Sketcher.Constraint("Equal", 5, 6))
sketch3.addConstraint(Sketcher.Constraint("Equal", 6, 7))
sketch3.addConstraint(Sketcher.Constraint("Equal", 8, 9))
sketch3.addConstraint(Sketcher.Constraint("Equal", 9, 10))
sketch3.addConstraint(Sketcher.Constraint("Equal", 10, 11))
sketch3.addConstraint(Sketcher.Constraint("Symmetric", 3, 3, 4, 3, -2))
sketch3.addConstraint(Sketcher.Constraint("Symmetric", 2, 3, 5, 3, -2))
sketch3.addConstraint(Sketcher.Constraint("Symmetric", 1, 3, 6, 3, -2))
sketch3.addConstraint(Sketcher.Constraint("Symmetric", 0, 3, 7, 3, -2))
sketch3.addConstraint(Sketcher.Constraint("Horizontal", 1, 3, 2, 3))
sketch3.addConstraint(Sketcher.Constraint("Horizontal", 0, 3, 3, 3))
sketch3.addConstraint(Sketcher.Constraint("Horizontal", 8, 3, 10, 3))
sketch3.addConstraint(Sketcher.Constraint("Horizontal", 9, 3, 11, 3))
sketch3.addConstraint(Sketcher.Constraint("Vertical", 0, 3, 1, 3))
sketch3.addConstraint(Sketcher.Constraint("Vertical", 2, 3, 3, 3))
sketch3.addConstraint(Sketcher.Constraint("Vertical", 8, 3, 9, 3))
sketch3.addConstraint(Sketcher.Constraint("Vertical", 10, 3, 11, 3))
sketch3.addConstraint(Sketcher.Constraint("Diameter", 0, Q("2 mm")))
sketch3.addConstraint(Sketcher.Constraint("Diameter", 8, Q("3 mm")))
sketch3.addConstraint(Sketcher.Constraint("DistanceX", 0, 3, -1, 1, Q("133 mm")))
sketch3.addConstraint(Sketcher.Constraint("DistanceX", 2, 3, -1, 1, Q("117 mm")))
sketch3.addConstraint(Sketcher.Constraint("DistanceX", 8, 3, -1, 1, Q("83 mm")))
sketch3.addConstraint(Sketcher.Constraint("DistanceX", -1, 1, 10, 3, Q("93 mm")))
sketch3.addConstraint(Sketcher.Constraint("DistanceY", 0, 3, 1, 3, Q("16 mm")))
sketch3.addConstraint(Sketcher.Constraint("DistanceY", 0, 3, -1, 1, Q("31.49 mm")))
sketch3.addConstraint(Sketcher.Constraint("DistanceY", -1, 1, 8, 3, Q("22.75 mm")))
sketch3.addConstraint(Sketcher.Constraint("DistanceY", 9, 3, -1, 1, Q("20.01 mm")))
pocket1 = body.newObject("PartDesign::Pocket", "Pocket")
pocket1.Profile = sketch3
pocket1.Length = 6
pocket1.Reversed = True

sketch4 = body.newObject("Sketcher::SketchObject", "Sketch003")
sketch4.AttachmentSupport = (doc.getObject("XY_Plane"), [""])
sketch4.MapMode = "FlatFace"
sketch4.addGeometry(Part.LineSegment(V(-30, 63, 0), V(-30, 48, 0)), False)
sketch4.addGeometry(Part.LineSegment(V(-30, 48, 0), V(-60, 48, 0)), False)
sketch4.addGeometry(Part.LineSegment(V(-60, 48, 0), V(-60, 63, 0)), False)
sketch4.addGeometry(Part.LineSegment(V(-60, 63, 0), V(-30, 63, 0)), False)
sketch4.addConstraint(Sketcher.Constraint("Coincident", 0, 2, 1, 1))
sketch4.addConstraint(Sketcher.Constraint("Coincident", 1, 2, 2, 1))
sketch4.addConstraint(Sketcher.Constraint("Coincident", 2, 2, 3, 1))
sketch4.addConstraint(Sketcher.Constraint("Coincident", 3, 2, 0, 1))
sketch4.addConstraint(Sketcher.Constraint("Vertical", 0))
sketch4.addConstraint(Sketcher.Constraint("Horizontal", 1))
sketch4.addConstraint(Sketcher.Constraint("Vertical", 2))
sketch4.addConstraint(Sketcher.Constraint("Horizontal", 3))
sketch4.addConstraint(Sketcher.Constraint("DistanceX", 1, 2, 1, 1, Q("30 mm")))
sketch4.addConstraint(Sketcher.Constraint("DistanceY", 0, 2, 0, 1, Q("15 mm")))
sketch4.addConstraint(Sketcher.Constraint("DistanceX", 0, 2, -1, 1, Q("30.5 mm")))
sketch4.addConstraint(Sketcher.Constraint("DistanceY", -1, 1, 0, 2, Q("47.75 mm")))
pocket2 = body.newObject("PartDesign::Pocket", "Pocket001")
pocket2.Profile = sketch4
pocket2.Length = 6
pocket2.Reversed = True

doc.recompute()
